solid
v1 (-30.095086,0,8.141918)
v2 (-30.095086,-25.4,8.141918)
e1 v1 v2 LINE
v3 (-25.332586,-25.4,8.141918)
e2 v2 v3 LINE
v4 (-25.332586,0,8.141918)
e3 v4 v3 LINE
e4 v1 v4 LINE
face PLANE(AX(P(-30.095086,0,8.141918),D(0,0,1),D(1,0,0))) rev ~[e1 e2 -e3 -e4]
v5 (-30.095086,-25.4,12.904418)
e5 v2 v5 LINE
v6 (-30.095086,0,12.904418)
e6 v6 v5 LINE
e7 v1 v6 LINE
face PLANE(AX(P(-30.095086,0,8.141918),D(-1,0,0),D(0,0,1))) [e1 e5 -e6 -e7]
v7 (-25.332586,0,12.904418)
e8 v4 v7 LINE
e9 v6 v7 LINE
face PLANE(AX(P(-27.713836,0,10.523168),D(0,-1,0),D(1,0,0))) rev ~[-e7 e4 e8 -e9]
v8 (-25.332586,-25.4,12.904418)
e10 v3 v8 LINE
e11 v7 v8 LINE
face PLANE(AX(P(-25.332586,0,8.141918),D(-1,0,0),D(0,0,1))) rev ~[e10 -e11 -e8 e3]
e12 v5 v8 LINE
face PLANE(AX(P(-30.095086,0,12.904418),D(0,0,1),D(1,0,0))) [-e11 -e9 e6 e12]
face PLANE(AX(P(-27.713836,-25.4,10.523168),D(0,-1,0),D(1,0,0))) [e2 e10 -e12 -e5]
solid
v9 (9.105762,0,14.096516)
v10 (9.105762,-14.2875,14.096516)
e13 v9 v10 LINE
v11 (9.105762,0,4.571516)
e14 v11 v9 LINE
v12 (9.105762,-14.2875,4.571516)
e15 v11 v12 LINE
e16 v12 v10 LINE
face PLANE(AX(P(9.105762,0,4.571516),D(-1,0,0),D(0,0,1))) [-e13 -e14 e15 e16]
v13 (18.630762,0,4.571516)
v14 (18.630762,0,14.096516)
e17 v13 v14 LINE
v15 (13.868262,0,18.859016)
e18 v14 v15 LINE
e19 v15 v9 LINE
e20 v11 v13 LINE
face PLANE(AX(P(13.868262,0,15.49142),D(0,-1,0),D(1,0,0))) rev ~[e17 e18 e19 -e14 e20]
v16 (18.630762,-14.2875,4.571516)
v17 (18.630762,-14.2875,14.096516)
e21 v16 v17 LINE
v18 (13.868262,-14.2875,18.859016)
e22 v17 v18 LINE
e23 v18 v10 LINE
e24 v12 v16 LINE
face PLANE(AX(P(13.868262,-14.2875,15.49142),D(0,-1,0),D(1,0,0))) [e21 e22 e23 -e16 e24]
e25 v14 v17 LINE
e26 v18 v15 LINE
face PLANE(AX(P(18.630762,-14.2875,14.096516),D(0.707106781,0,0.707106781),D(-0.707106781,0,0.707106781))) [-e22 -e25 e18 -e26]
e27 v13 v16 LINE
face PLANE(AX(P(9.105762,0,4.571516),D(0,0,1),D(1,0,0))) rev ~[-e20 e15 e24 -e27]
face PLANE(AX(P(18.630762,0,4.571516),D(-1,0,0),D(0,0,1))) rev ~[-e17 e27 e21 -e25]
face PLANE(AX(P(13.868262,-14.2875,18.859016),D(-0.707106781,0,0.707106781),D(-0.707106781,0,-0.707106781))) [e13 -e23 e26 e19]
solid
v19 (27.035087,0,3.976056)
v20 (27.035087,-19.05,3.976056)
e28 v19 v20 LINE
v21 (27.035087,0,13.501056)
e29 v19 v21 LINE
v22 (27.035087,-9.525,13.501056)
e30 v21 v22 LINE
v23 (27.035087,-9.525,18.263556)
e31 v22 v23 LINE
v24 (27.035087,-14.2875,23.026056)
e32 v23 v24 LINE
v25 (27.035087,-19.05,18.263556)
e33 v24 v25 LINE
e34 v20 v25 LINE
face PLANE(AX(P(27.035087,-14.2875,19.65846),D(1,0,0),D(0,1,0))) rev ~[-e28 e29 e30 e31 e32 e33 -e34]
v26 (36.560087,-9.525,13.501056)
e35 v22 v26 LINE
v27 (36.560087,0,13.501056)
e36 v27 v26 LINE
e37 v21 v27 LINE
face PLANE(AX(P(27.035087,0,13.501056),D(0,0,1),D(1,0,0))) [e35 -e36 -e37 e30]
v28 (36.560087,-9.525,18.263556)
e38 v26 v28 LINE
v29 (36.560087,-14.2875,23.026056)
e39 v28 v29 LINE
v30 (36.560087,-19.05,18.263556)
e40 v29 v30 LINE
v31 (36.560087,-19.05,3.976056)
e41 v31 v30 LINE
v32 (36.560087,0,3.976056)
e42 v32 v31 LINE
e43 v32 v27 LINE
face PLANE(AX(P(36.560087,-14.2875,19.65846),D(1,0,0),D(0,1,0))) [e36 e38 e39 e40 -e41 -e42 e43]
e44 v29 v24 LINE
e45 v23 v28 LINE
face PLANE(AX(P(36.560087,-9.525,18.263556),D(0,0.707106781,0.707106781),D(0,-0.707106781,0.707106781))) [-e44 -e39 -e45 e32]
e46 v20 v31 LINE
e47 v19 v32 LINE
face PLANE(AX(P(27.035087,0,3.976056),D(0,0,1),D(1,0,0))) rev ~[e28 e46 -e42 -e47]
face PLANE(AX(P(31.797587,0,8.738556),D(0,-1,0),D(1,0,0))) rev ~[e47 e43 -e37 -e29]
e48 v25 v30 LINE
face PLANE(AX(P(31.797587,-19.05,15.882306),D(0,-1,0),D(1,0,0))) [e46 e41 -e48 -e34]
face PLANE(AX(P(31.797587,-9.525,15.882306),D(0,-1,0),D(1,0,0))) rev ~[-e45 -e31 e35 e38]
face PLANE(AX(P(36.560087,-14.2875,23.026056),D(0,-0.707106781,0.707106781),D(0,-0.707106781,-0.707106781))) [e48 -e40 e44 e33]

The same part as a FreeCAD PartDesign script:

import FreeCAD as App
import Part
import Sketcher

V = App.Vector
Q = App.Units.Quantity

doc = App.newDocument("Part")
body = doc.addObject("PartDesign::Body", "Body")

# Sketch on XZ plane
sketch1 = body.newObject("Sketcher::SketchObject", "Sketch")
sketch1.AttachmentSupport = (doc.getObject("XZ_Plane"), [""])
sketch1.MapMode = "FlatFace"
sketch1.addGeometry(Part.LineSegment(V(-30.1, 12.9, 0), V(-30.1, 8.1, 0)), False)
sketch1.addGeometry(Part.LineSegment(V(-30.1, 8.1, 0), V(-25.3, 8.1, 0)), False)
sketch1.addGeometry(Part.LineSegment(V(-25.3, 8.1, 0), V(-25.3, 12.9, 0)), False)
sketch1.addGeometry(Part.LineSegment(V(-25.3, 12.9, 0), V(-30.1, 12.9, 0)), False)
sketch1.addConstraint(Sketcher.Constraint("Coincident", 0, 2, 1, 1))
sketch1.addConstraint(Sketcher.Constraint("Coincident", 1, 2, 2, 1))
sketch1.addConstraint(Sketcher.Constraint("Coincident", 2, 2, 3, 1))
sketch1.addConstraint(Sketcher.Constraint("Coincident", 3, 2, 0, 1))
sketch1.addConstraint(Sketcher.Constraint("Vertical", 0))
sketch1.addConstraint(Sketcher.Constraint("Horizontal", 1))
sketch1.addConstraint(Sketcher.Constraint("Vertical", 2))
sketch1.addConstraint(Sketcher.Constraint("Horizontal", 3))
sketch1.addConstraint(Sketcher.Constraint("Equal", 3, 0))
sketch1.addConstraint(Sketcher.Constraint("DistanceX", 1, 1, 1, 2, Q("0.1875 in")))
sketch1.addConstraint(Sketcher.Constraint("DistanceY", -1, 1, 0, 2, Q("8.141918 mm")))
sketch1.addConstraint(Sketcher.Constraint("DistanceX", 0, 2, -1, 1, Q("30.095086 mm")))
pad1 = body.newObject("PartDesign::Pad", "Pad")
pad1.Profile = sketch1
pad1.Length = Q("1 in")
body2 = doc.addObject("PartDesign::Body", "Body001")

# Sketch on XZ plane
sketch2 = body2.newObject("Sketcher::SketchObject", "Sketch001")
sketch2.AttachmentSupport = (doc.getObject("XZ_Plane001"), [""])
sketch2.MapMode = "FlatFace"
sketch2.addGeometry(Part.LineSegment(V(9, 14, 0), V(9, 5, 0)), False)
sketch2.addGeometry(Part.LineSegment(V(9, 5, 0), V(19, 5, 0)), False)
sketch2.addGeometry(Part.LineSegment(V(19, 5, 0), V(19, 14, 0)), False)
sketch2.addGeometry(Part.LineSegment(V(19, 14, 0), V(9, 14, 0)), False)
sketch2.addConstraint(Sketcher.Constraint("Coincident", 0, 2, 1, 1))
sketch2.addConstraint(Sketcher.Constraint("Coincident", 1, 2, 2, 1))
sketch2.addConstraint(Sketcher.Constraint("Coincident", 2, 2, 3, 1))
sketch2.addConstraint(Sketcher.Constraint("Coincident", 3, 2, 0, 1))
sketch2.addConstraint(Sketcher.Constraint("Vertical", 0))
sketch2.addConstraint(Sketcher.Constraint("Horizontal", 1))
sketch2.addConstraint(Sketcher.Constraint("Vertical", 2))
sketch2.addConstraint(Sketcher.Constraint("Horizontal", 3))
sketch2.addConstraint(Sketcher.Constraint("Equal", 3, 0))
sketch2.addConstraint(Sketcher.Constraint("DistanceX", 1, 1, 1, 2, Q("0.375 in")))
sketch2.addConstraint(Sketcher.Constraint("DistanceX", -1, 1, 0, 2, Q("9.105762 mm")))
sketch2.addConstraint(Sketcher.Constraint("DistanceY", -1, 1, 0, 2, Q("4.571516 mm")))
pad2 = body2.newObject("PartDesign::Pad", "Pad001")
pad2.Profile = sketch2
pad2.Length = Q("0.5625 in")

# Sketch on XZ plane
sketch3 = body2.newObject("Sketcher::SketchObject", "Sketch002")
sketch3.AttachmentSupport = (doc.getObject("XZ_Plane001"), [""])
sketch3.MapMode = "FlatFace"
sketch3.AttachmentOffset = App.Placement(V(0, 0, 0.5625 * 25.4), App.Rotation())
sketch3.addGeometry(Part.LineSegment(V(19, 14, 0), V(14, 19, 0)), False)
sketch3.addGeometry(Part.LineSegment(V(14, 19, 0), V(9, 14, 0)), False)
sketch3.addGeometry(Part.LineSegment(V(9, 14, 0), V(19, 14, 0)), False)
sketch3.addConstraint(Sketcher.Constraint("Coincident", 0, 2, 1, 1))
sketch3.addConstraint(Sketcher.Constraint("Coincident", 1, 2, 2, 1))
sketch3.addConstraint(Sketcher.Constraint("Coincident", 2, 2, 0, 1))
sketch3.addConstraint(Sketcher.Constraint("Horizontal", 2))
sketch3.addConstraint(Sketcher.Constraint("Perpendicular", 0, 1))
sketch3.addConstraint(Sketcher.Constraint("Equal", 0, 1))
sketch3.addConstraint(Sketcher.Constraint("DistanceX", 2, 1, 2, 2, Q("0.375 in")))
sketch3.addConstraint(Sketcher.Constraint("DistanceX", -1, 1, 0, 2, Q("13.868262 mm")))
sketch3.addConstraint(Sketcher.Constraint("DistanceY", -1, 1, 0, 2, Q("18.859016 mm")))
pad3 = body2.newObject("PartDesign::Pad", "Pad002")
pad3.Profile = sketch3
pad3.Length = Q("0.5625 in")
pad3.Reversed = True
body3 = doc.addObject("PartDesign::Body", "Body002")

# Sketch on XZ plane
sketch4 = body3.newObject("Sketcher::SketchObject", "Sketch003")
sketch4.AttachmentSupport = (doc.getObject("XZ_Plane002"), [""])
sketch4.MapMode = "FlatFace"
sketch4.addGeometry(Part.LineSegment(V(27, 14, 0), V(27, 4, 0)), False)
sketch4.addGeometry(Part.LineSegment(V(27, 4, 0), V(37, 4, 0)), False)
sketch4.addGeometry(Part.LineSegment(V(37, 4, 0), V(37, 14, 0)), False)
sketch4.addGeometry(Part.LineSegment(V(37, 14, 0), V(27, 14, 0)), False)
sketch4.addConstraint(Sketcher.Constraint("Coincident", 0, 2, 1, 1))
sketch4.addConstraint(Sketcher.Constraint("Coincident", 1, 2, 2, 1))
sketch4.addConstraint(Sketcher.Constraint("Coincident", 2, 2, 3, 1))
sketch4.addConstraint(Sketcher.Constraint("Coincident", 3, 2, 0, 1))
sketch4.addConstraint(Sketcher.Constraint("Vertical", 0))
sketch4.addConstraint(Sketcher.Constraint("Horizontal", 1))
sketch4.addConstraint(Sketcher.Constraint("Vertical", 2))
sketch4.addConstraint(Sketcher.Constraint("Horizontal", 3))
sketch4.addConstraint(Sketcher.Constraint("Equal", 3, 0))
sketch4.addConstraint(Sketcher.Constraint("DistanceX", 1, 1, 1, 2, Q("0.375 in")))
sketch4.addConstraint(Sketcher.Constraint("DistanceX", -1, 1, 0, 2, Q("27.035087 mm")))
sketch4.addConstraint(Sketcher.Constraint("DistanceY", -1, 1, 0, 2, Q("3.976056 mm")))
pad4 = body3.newObject("PartDesign::Pad", "Pad003")
pad4.Profile = sketch4
pad4.Length = Q("0.75 in")

# Sketch on XZ plane
sketch5 = body3.newObject("Sketcher::SketchObject", "Sketch004")
sketch5.AttachmentSupport = (doc.getObject("XZ_Plane002"), [""])
sketch5.MapMode = "FlatFace"
sketch5.AttachmentOffset = App.Placement(V(0, 0, 0.75 * 25.4), App.Rotation())
sketch5.addGeometry(Part.LineSegment(V(27, 18.3, 0), V(27, 13.5, 0)), False)
sketch5.addGeometry(Part.LineSegment(V(27, 13.5, 0), V(36.6, 13.5, 0)), False)
sketch5.addGeometry(Part.LineSegment(V(36.6, 13.5, 0), V(36.6, 18.3, 0)), False)
sketch5.addGeometry(Part.LineSegment(V(36.6, 18.3, 0), V(27, 18.3, 0)), False)
sketch5.addConstraint(Sketcher.Constraint("Coincident", 0, 2, 1, 1))
sketch5.addConstraint(Sketcher.Constraint("Coincident", 1, 2, 2, 1))
sketch5.addConstraint(Sketcher.Constraint("Coincident", 2, 2, 3, 1))
sketch5.addConstraint(Sketcher.Constraint("Coincident", 3, 2, 0, 1))
sketch5.addConstraint(Sketcher.Constraint("Vertical", 0))
sketch5.addConstraint(Sketcher.Constraint("Horizontal", 1))
sketch5.addConstraint(Sketcher.Constraint("Vertical", 2))
sketch5.addConstraint(Sketcher.Constraint("Horizontal", 3))
sketch5.addConstraint(Sketcher.Constraint("DistanceX", 1, 1, 1, 2, Q("0.375 in")))
sketch5.addConstraint(Sketcher.Constraint("DistanceY", 0, 2, 0, 1, Q("0.1875 in")))
sketch5.addConstraint(Sketcher.Constraint("DistanceX", -1, 1, 0, 2, Q("27.035087 mm")))
sketch5.addConstraint(Sketcher.Constraint("DistanceY", -1, 1, 0, 2, Q("13.501056 mm")))
pad5 = body3.newObject("PartDesign::Pad", "Pad004")
pad5.Profile = sketch5
pad5.Length = Q("0.375 in")
pad5.Reversed = True

# Sketch on YZ plane
sketch6 = body3.newObject("Sketcher::SketchObject", "Sketch005")
sketch6.AttachmentSupport = (doc.getObject("YZ_Plane002"), [""])
sketch6.MapMode = "FlatFace"
sketch6.AttachmentOffset = App.Placement(V(0, 0, 36.560087), App.Rotation())
sketch6.addGeometry(Part.LineSegment(V(-10, 18, 0), V(-14, 23, 0)), False)
sketch6.addGeometry(Part.LineSegment(V(-14, 23, 0), V(-19, 18, 0)), False)
sketch6.addGeometry(Part.LineSegment(V(-19, 18, 0), V(-10, 18, 0)), False)
sketch6.addConstraint(Sketcher.Constraint("Coincident", 0, 2, 1, 1))
sketch6.addConstraint(Sketcher.Constraint("Coincident", 1, 2, 2, 1))
sketch6.addConstraint(Sketcher.Constraint("Coincident", 2, 2, 0, 1))
sketch6.addConstraint(Sketcher.Constraint("Horizontal", 2))
sketch6.addConstraint(Sketcher.Constraint("Perpendicular", 0, 1))
sketch6.addConstraint(Sketcher.Constraint("Equal", 0, 1))
sketch6.addConstraint(Sketcher.Constraint("DistanceX", 2, 1, 2, 2, Q("0.375 in")))
sketch6.addConstraint(Sketcher.Constraint("DistanceX", 1, 2, -1, 1, Q("0.75 in")))
sketch6.addConstraint(Sketcher.Constraint("DistanceY", -1, 1, 0, 2, Q("23.026056 mm")))
pad6 = body3.newObject("PartDesign::Pad", "Pad005")
pad6.Profile = sketch6
pad6.Length = Q("0.375 in")
pad6.Reversed = True

doc.recompute()
